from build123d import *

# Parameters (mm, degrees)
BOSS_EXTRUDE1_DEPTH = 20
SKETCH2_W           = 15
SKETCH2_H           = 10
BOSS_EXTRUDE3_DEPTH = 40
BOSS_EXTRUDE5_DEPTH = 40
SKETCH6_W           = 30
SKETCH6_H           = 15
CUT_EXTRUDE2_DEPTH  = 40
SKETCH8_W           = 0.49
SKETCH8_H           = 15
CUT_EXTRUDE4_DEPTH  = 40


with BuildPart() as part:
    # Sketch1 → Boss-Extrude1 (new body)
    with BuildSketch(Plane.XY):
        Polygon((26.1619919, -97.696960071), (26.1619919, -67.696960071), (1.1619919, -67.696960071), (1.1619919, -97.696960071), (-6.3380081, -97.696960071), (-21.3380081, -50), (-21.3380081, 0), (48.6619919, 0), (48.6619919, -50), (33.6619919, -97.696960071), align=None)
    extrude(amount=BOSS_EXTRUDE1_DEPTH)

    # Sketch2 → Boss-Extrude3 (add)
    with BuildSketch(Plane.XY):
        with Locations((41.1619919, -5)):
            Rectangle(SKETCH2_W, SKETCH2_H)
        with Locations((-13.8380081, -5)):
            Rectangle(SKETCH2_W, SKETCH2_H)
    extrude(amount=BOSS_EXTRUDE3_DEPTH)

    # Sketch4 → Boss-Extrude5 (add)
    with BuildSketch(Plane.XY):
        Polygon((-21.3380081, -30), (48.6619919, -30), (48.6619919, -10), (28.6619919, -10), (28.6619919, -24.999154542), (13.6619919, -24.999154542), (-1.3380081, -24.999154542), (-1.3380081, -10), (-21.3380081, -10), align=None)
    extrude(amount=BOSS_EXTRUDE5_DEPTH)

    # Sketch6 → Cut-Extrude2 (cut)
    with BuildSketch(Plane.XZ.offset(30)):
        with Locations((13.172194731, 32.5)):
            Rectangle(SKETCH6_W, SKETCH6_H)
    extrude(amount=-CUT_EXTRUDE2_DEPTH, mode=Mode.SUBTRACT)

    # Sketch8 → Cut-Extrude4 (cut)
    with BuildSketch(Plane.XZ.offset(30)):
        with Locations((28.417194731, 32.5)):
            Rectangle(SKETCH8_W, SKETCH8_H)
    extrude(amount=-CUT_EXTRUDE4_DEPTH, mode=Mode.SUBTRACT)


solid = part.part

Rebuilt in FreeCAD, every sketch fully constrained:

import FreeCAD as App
import Part
import Sketcher
Q = App.Units.Quantity


def add_polygon(sketch, points):
    """Adds a closed chain of lines whose ends are joined by coincident constraints."""
    first, n = sketch.GeometryCount, len(points)
    for a, b in zip(points, points[1:] + points[:1]):
        sketch.addGeometry(Part.LineSegment(App.Vector(*a, 0), App.Vector(*b, 0)), False)
    for i in range(n):
        sketch.addConstraint(Sketcher.Constraint("Coincident", first + i, 2, first + (i + 1) % n, 1))

doc = App.newDocument("Part")
body = doc.addObject("PartDesign::Body", "Body")

# Sketch on XY plane
sketch1 = body.newObject("Sketcher::SketchObject", "Sketch")
sketch1.AttachmentSupport = (doc.getObject("XY_Plane"), [""])
sketch1.MapMode = "FlatFace"
add_polygon(sketch1, [(26, -68), (26, -98), (34, -98), (49, -50), (49, 0), (-21, 0), (-21, -50), (-6, -98), (1, -98), (1, -68)])  # lines 0-9
sketch1.addConstraint(Sketcher.Constraint("Vertical", 0))
sketch1.addConstraint(Sketcher.Constraint("Horizontal", 1))
sketch1.addConstraint(Sketcher.Constraint("Vertical", 3))
sketch1.addConstraint(Sketcher.Constraint("Horizontal", 4))
sketch1.addConstraint(Sketcher.Constraint("Vertical", 5))
sketch1.addConstraint(Sketcher.Constraint("Horizontal", 7))
sketch1.addConstraint(Sketcher.Constraint("Vertical", 8))
sketch1.addConstraint(Sketcher.Constraint("Horizontal", 9))
sketch1.addConstraint(Sketcher.Constraint("PointOnObject", 3, 2, -1))
sketch1.addConstraint(Sketcher.Constraint("Horizontal", 2, 2, 5, 2))
sketch1.addConstraint(Sketcher.Constraint("Horizontal", 1, 2, 6, 2))
sketch1.addConstraint(Sketcher.Constraint("Equal", 1, 7))
sketch1.addConstraint(Sketcher.Constraint("Equal", 2, 6))
sketch1.addConstraint(Sketcher.Constraint("DistanceX", 4, 2, 4, 1, Q("70 mm")))
sketch1.addConstraint(Sketcher.Constraint("DistanceX", 9, 1, 9, 2, Q("25 mm")))
sketch1.addConstraint(Sketcher.Constraint("DistanceY", 0, 2, 0, 1, Q("30 mm")))
sketch1.addConstraint(Sketcher.Constraint("DistanceY", 3, 1, 3, 2, Q("50 mm")))
sketch1.addConstraint(Sketcher.Constraint("Distance", 2, Q("50 mm")))
sketch1.addConstraint(Sketcher.Constraint("DistanceX", 1, 1, 1, 2, Q("7.5 mm")))
sketch1.addConstraint(Sketcher.Constraint("DistanceX", -1, 1, 0, 2, Q("26.161992 mm")))
pad1 = body.newObject("PartDesign::Pad", "Pad")
pad1.Profile = sketch1
pad1.Length = 20

# Sketch on XY plane
sketch2 = body.newObject("Sketcher::SketchObject", "Sketch001")
sketch2.AttachmentSupport = (doc.getObject("XY_Plane"), [""])
sketch2.MapMode = "FlatFace"
add_polygon(sketch2, [(34, 0), (34, -10), (49, -10), (49, 0)])  # lines 0-3
add_polygon(sketch2, [(-21, 0), (-21, -10), (-6, -10), (-6, 0)])  # lines 4-7
sketch2.addConstraint(Sketcher.Constraint("Vertical", 0))
sketch2.addConstraint(Sketcher.Constraint("Horizontal", 1))
sketch2.addConstraint(Sketcher.Constraint("Vertical", 2))
sketch2.addConstraint(Sketcher.Constraint("Horizontal", 3))
sketch2.addConstraint(Sketcher.Constraint("Vertical", 4))
sketch2.addConstraint(Sketcher.Constraint("Horizontal", 5))
sketch2.addConstraint(Sketcher.Constraint("Vertical", 6))
sketch2.addConstraint(Sketcher.Constraint("Horizontal", 7))
sketch2.addConstraint(Sketcher.Constraint("PointOnObject", 2, 2, -1))
sketch2.addConstraint(Sketcher.Constraint("PointOnObject", 6, 2, -1))
sketch2.addConstraint(Sketcher.Constraint("Horizontal", 1, 2, 4, 2))
sketch2.addConstraint(Sketcher.Constraint("Equal", 3, 5))
sketch2.addConstraint(Sketcher.Constraint("DistanceX", 1, 1, 1, 2, Q("15 mm")))
sketch2.addConstraint(Sketcher.Constraint("DistanceY", 0, 2, 0, 1, Q("10 mm")))
sketch2.addConstraint(Sketcher.Constraint("DistanceX", 4, 2, 0, 2, Q("55 mm")))
sketch2.addConstraint(Sketcher.Constraint("DistanceX", -1, 1, 0, 2, Q("33.661992 mm")))
pad2 = body.newObject("PartDesign::Pad", "Pad001")
pad2.Profile = sketch2
pad2.Length = 40

# Sketch on XY plane
sketch3 = body.newObject("Sketcher::SketchObject", "Sketch002")
sketch3.AttachmentSupport = (doc.getObject("XY_Plane"), [""])
sketch3.MapMode = "FlatFace"
add_polygon(sketch3, [(-21, -30), (49, -30), (49, -10), (29, -10), (29, -25), (-1, -25), (-1, -10), (-21, -10)])  # lines 0-7
sketch3.addConstraint(Sketcher.Constraint("Horizontal", 0))
sketch3.addConstraint(Sketcher.Constraint("Vertical", 1))
sketch3.addConstraint(Sketcher.Constraint("Horizontal", 2))
sketch3.addConstraint(Sketcher.Constraint("Vertical", 3))
sketch3.addConstraint(Sketcher.Constraint("Horizontal", 4))
sketch3.addConstraint(Sketcher.Constraint("Vertical", 5))
sketch3.addConstraint(Sketcher.Constraint("Horizontal", 6))
sketch3.addConstraint(Sketcher.Constraint("Vertical", 7))
sketch3.addConstraint(Sketcher.Constraint("Horizontal", 2, 2, 5, 2))
sketch3.addConstraint(Sketcher.Constraint("Equal", 2, 6))
sketch3.addConstraint(Sketcher.Constraint("Equal", 6, 1))
sketch3.addConstraint(Sketcher.Constraint("DistanceX", 0, 1, 0, 2, Q("70 mm")))
sketch3.addConstraint(Sketcher.Constraint("DistanceX", 2, 2, 2, 1, Q("20 mm")))
sketch3.addConstraint(Sketcher.Constraint("DistanceY", 0, 2, -1, 1, Q("30 mm")))
sketch3.addConstraint(Sketcher.Constraint("DistanceY", 3, 2, 3, 1, Q("14.999155 mm")))
sketch3.addConstraint(Sketcher.Constraint("DistanceX", -1, 1, 0, 2, Q("48.661992 mm")))
pad3 = body.newObject("PartDesign::Pad", "Pad002")
pad3.Profile = sketch3
pad3.Length = 40

# Sketch on XZ plane
sketch4 = body.newObject("Sketcher::SketchObject", "Sketch003")
sketch4.AttachmentSupport = (doc.getObject("XZ_Plane"), [""])
sketch4.MapMode = "FlatFace"
sketch4.AttachmentOffset = App.Placement(App.Vector(0, 0, 30), App.Rotation())
add_polygon(sketch4, [(-2, 40), (-2, 25), (28, 25), (28, 40)])  # lines 0-3
sketch4.addConstraint(Sketcher.Constraint("Vertical", 0))
sketch4.addConstraint(Sketcher.Constraint("Horizontal", 1))
sketch4.addConstraint(Sketcher.Constraint("Vertical", 2))
sketch4.addConstraint(Sketcher.Constraint("Horizontal", 3))
sketch4.addConstraint(Sketcher.Constraint("DistanceX", 1, 1, 1, 2, Q("30 mm")))
sketch4.addConstraint(Sketcher.Constraint("DistanceY", 0, 2, 0, 1, Q("15 mm")))
sketch4.addConstraint(Sketcher.Constraint("DistanceY", -1, 1, 0, 2, Q("25 mm")))
sketch4.addConstraint(Sketcher.Constraint("DistanceX", 0, 2, -1, 1, Q("1.827805 mm")))
pocket1 = body.newObject("PartDesign::Pocket", "Pocket")
pocket1.Profile = sketch4
pocket1.Length = 40

# Sketch on XZ plane
sketch5 = body.newObject("Sketcher::SketchObject", "Sketch004")
sketch5.AttachmentSupport = (doc.getObject("XZ_Plane"), [""])
sketch5.MapMode = "FlatFace"
sketch5.AttachmentOffset = App.Placement(App.Vector(0, 0, 30), App.Rotation())
add_polygon(sketch5, [(28.17, 40), (28.17, 25), (28.66, 25), (28.66, 40)])  # lines 0-3
sketch5.addConstraint(Sketcher.Constraint("Vertical", 0))
sketch5.addConstraint(Sketcher.Constraint("Horizontal", 1))
sketch5.addConstraint(Sketcher.Constraint("Vertical", 2))
sketch5.addConstraint(Sketcher.Constraint("Horizontal", 3))
sketch5.addConstraint(Sketcher.Constraint("DistanceY", 0, 2, 0, 1, Q("15 mm")))
sketch5.addConstraint(Sketcher.Constraint("DistanceY", -1, 1, 0, 2, Q("25 mm")))
sketch5.addConstraint(Sketcher.Constraint("DistanceX", 1, 1, 1, 2, Q("0.49 mm")))
sketch5.addConstraint(Sketcher.Constraint("DistanceX", -1, 1, 0, 2, Q("28.172195 mm")))
pocket2 = body.newObject("PartDesign::Pocket", "Pocket001")
pocket2.Profile = sketch5
pocket2.Length = 40

doc.recompute()
